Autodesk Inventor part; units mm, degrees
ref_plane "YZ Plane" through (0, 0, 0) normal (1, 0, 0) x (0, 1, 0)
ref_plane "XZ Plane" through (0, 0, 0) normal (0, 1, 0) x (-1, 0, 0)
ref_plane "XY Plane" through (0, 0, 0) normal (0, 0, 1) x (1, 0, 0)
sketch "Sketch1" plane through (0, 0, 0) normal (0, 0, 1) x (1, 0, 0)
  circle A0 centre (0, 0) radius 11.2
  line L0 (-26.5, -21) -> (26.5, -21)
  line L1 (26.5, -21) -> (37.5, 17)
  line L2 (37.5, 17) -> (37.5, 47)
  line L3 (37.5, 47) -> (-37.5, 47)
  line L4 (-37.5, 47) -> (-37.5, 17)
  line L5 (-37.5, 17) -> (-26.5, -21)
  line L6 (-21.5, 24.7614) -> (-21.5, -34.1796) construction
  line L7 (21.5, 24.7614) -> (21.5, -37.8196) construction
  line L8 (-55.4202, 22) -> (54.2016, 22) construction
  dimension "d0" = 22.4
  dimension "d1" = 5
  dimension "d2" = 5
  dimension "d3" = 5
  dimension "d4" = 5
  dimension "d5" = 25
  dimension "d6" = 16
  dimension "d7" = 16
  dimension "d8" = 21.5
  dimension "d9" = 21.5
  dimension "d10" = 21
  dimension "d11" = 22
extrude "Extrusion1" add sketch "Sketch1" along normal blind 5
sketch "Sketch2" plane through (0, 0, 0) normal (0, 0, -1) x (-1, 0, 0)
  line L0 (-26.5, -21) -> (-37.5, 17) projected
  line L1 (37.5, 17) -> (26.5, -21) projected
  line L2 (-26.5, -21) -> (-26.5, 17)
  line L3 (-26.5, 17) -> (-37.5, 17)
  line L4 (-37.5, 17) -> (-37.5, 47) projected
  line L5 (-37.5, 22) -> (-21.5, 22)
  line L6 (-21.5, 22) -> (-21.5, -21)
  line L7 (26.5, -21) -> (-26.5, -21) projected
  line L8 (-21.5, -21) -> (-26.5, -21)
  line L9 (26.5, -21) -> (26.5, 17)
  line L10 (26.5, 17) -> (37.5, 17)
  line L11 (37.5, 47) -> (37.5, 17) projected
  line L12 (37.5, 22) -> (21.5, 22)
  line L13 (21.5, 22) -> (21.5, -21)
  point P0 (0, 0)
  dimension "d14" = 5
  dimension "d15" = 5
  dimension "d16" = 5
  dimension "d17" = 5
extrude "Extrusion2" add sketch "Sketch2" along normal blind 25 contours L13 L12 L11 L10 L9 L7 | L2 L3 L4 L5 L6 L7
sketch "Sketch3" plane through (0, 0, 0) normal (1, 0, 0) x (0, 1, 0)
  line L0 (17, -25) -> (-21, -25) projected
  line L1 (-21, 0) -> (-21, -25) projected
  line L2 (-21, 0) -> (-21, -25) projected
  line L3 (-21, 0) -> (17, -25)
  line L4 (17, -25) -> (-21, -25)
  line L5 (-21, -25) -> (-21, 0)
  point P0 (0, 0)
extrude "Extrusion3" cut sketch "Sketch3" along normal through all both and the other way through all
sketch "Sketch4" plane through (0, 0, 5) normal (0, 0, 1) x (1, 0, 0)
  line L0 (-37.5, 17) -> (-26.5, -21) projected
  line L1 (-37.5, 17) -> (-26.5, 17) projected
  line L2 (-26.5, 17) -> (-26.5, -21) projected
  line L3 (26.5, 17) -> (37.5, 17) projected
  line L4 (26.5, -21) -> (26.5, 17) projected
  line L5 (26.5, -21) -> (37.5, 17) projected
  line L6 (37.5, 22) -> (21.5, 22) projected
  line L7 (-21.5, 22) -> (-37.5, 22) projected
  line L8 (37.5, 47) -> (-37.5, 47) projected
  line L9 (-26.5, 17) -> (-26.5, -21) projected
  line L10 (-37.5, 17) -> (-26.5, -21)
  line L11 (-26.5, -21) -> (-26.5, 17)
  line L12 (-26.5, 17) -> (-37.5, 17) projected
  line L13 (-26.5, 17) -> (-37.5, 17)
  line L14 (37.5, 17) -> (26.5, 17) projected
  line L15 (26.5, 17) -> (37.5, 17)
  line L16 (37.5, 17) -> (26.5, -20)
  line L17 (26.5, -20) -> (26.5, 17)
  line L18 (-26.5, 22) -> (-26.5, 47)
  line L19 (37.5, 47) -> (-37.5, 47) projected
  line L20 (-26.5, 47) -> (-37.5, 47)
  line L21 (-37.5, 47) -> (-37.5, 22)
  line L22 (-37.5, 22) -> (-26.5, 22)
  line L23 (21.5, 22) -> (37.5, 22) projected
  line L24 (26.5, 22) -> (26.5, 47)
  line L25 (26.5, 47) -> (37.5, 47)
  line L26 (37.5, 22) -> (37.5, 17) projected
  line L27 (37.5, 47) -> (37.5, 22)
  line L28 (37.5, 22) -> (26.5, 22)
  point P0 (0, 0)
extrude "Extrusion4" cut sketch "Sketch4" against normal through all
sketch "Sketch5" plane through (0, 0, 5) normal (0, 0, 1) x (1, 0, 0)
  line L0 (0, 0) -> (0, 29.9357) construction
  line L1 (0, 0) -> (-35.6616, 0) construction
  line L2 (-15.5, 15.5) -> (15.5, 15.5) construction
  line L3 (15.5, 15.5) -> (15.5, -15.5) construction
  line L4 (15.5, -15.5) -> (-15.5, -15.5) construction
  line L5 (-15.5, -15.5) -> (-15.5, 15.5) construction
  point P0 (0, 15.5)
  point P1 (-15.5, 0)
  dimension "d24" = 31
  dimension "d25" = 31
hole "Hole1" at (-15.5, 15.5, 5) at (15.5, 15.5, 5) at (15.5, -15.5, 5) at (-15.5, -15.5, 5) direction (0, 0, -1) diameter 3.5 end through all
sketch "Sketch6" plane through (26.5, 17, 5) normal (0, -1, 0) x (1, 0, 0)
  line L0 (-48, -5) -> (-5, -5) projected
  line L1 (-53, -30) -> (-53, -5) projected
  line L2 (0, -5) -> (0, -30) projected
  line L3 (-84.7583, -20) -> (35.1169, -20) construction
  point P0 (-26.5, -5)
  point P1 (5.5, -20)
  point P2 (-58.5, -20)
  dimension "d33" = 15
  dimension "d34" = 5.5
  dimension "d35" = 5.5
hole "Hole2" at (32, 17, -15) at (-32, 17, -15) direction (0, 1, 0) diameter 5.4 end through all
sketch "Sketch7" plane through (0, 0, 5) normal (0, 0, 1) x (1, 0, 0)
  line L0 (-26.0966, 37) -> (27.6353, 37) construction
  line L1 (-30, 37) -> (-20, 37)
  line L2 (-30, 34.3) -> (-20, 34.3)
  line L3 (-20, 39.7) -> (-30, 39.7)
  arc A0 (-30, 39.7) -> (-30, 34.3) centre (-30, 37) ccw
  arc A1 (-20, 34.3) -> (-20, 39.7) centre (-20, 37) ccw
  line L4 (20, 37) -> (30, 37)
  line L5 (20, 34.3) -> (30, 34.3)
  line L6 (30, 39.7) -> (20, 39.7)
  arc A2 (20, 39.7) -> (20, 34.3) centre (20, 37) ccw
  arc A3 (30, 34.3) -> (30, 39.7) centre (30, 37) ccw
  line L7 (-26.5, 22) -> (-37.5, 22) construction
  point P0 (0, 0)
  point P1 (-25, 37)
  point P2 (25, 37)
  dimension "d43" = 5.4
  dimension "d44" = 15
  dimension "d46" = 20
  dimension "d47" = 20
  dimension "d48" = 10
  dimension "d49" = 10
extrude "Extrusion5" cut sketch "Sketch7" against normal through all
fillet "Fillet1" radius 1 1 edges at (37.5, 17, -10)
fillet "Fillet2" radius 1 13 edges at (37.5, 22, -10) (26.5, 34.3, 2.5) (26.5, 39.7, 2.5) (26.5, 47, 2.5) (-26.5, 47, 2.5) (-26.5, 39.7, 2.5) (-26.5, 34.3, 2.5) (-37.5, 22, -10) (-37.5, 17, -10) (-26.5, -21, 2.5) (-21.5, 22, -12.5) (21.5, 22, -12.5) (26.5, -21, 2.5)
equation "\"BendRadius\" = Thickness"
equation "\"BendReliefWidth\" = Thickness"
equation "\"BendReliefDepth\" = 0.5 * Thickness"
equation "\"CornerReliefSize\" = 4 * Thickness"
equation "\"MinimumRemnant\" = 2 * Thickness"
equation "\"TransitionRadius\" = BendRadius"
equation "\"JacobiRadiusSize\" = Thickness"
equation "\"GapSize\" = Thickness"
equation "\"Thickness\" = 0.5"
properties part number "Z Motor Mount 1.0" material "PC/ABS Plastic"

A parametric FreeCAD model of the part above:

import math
import FreeCAD as App
import Part
import Sketcher

V = App.Vector
Q = App.Units.Quantity


def edges_at(feature, points):
    """Names of the edges that pass closest to the given points."""
    edges = feature.Shape.Edges
    near = lambda p: min(range(len(edges)), key=lambda i: edges[i].distToShape(Part.Vertex(*p))[0])
    return sorted({f"Edge{near(p) + 1}" for p in points})

doc = App.newDocument("Part")
body = doc.addObject("PartDesign::Body", "Body")

sketch1 = doc.addObject("Sketcher::SketchObject", "Sketch")
body.addObject(sketch1)
sketch1.AttachmentSupport = (doc.XY_Plane, [""])
sketch1.MapMode = "FlatFace"
sketch1.addGeometry([
    Part.LineSegment(V(-38, 17, 0), V(-26, -21, 0)),
    Part.LineSegment(V(-26, -21, 0), V(26, -21, 0)),
    Part.LineSegment(V(26, -21, 0), V(38, 17, 0)),
    Part.LineSegment(V(38, 17, 0), V(38, 47, 0)),
    Part.LineSegment(V(38, 47, 0), V(-38, 47, 0)),
    Part.LineSegment(V(-38, 47, 0), V(-38, 17, 0)),
    Part.Circle(V(0, 0, 0), V(0, 0, 1), 11),
], False)
sketch1.addConstraint([
    Sketcher.Constraint("Coincident", 0, 2, 1, 1),
    Sketcher.Constraint("Coincident", 1, 2, 2, 1),
    Sketcher.Constraint("Coincident", 2, 2, 3, 1),
    Sketcher.Constraint("Coincident", 3, 2, 4, 1),
    Sketcher.Constraint("Coincident", 4, 2, 5, 1),
    Sketcher.Constraint("Coincident", 5, 2, 0, 1),
    Sketcher.Constraint("Horizontal", 1),
    Sketcher.Constraint("Vertical", 3),
    Sketcher.Constraint("Horizontal", 4),
    Sketcher.Constraint("Vertical", 5),
    Sketcher.Constraint("Coincident", 6, 3, -1, 1),
    Sketcher.Constraint("Symmetric", 2, 2, 5, 2, -2),
    Sketcher.Constraint("Equal", 0, 2),
    Sketcher.Constraint("Diameter", 6, Q("22.4 mm")),
    Sketcher.Constraint("DistanceY", 0, 2, -1, 1, Q("21 mm")),
    Sketcher.Constraint("DistanceX", 1, 1, 1, 2, Q("53 mm")),
    Sketcher.Constraint("DistanceX", 4, 2, 4, 1, Q("75 mm")),
    Sketcher.Constraint("DistanceY", 3, 1, 3, 2, Q("30 mm")),
    Sketcher.Constraint("DistanceY", -1, 1, 2, 2, Q("17 mm")),
])
pad1 = doc.addObject("PartDesign::Pad", "Pad")
body.addObject(pad1)
pad1.Profile = sketch1
pad1.Length = 5

sketch2 = doc.addObject("Sketcher::SketchObject", "Sketch001")
body.addObject(sketch2)
sketch2.AttachmentSupport = (doc.XY_Plane, [""])
sketch2.MapMode = "FlatFace"
sketch2.addGeometry([
    Part.LineSegment(V(-22, 22, 0), V(-22, -21, 0)),
    Part.LineSegment(V(-22, -21, 0), V(-26, -21, 0)),
    Part.LineSegment(V(-26, -21, 0), V(-26, 17, 0)),
    Part.LineSegment(V(-26, 17, 0), V(-38, 17, 0)),
    Part.LineSegment(V(-38, 17, 0), V(-38, 22, 0)),
    Part.LineSegment(V(-38, 22, 0), V(-22, 22, 0)),
    Part.LineSegment(V(26, 17, 0), V(26, -21, 0)),
    Part.LineSegment(V(26, -21, 0), V(22, -21, 0)),
    Part.LineSegment(V(22, -21, 0), V(22, 22, 0)),
    Part.LineSegment(V(22, 22, 0), V(38, 22, 0)),
    Part.LineSegment(V(38, 22, 0), V(38, 17, 0)),
    Part.LineSegment(V(38, 17, 0), V(26, 17, 0)),
], False)
sketch2.addConstraint([
    Sketcher.Constraint("Coincident", 0, 2, 1, 1),
    Sketcher.Constraint("Coincident", 1, 2, 2, 1),
    Sketcher.Constraint("Coincident", 2, 2, 3, 1),
    Sketcher.Constraint("Coincident", 3, 2, 4, 1),
    Sketcher.Constraint("Coincident", 4, 2, 5, 1),
    Sketcher.Constraint("Coincident", 5, 2, 0, 1),
    Sketcher.Constraint("Coincident", 6, 2, 7, 1),
    Sketcher.Constraint("Coincident", 7, 2, 8, 1),
    Sketcher.Constraint("Coincident", 8, 2, 9, 1),
    Sketcher.Constraint("Coincident", 9, 2, 10, 1),
    Sketcher.Constraint("Coincident", 10, 2, 11, 1),
    Sketcher.Constraint("Coincident", 11, 2, 6, 1),
    Sketcher.Constraint("Vertical", 0),
    Sketcher.Constraint("Horizontal", 1),
    Sketcher.Constraint("Vertical", 2),
    Sketcher.Constraint("Horizontal", 3),
    Sketcher.Constraint("Vertical", 4),
    Sketcher.Constraint("Horizontal", 5),
    Sketcher.Constraint("Vertical", 6),
    Sketcher.Constraint("Horizontal", 7),
    Sketcher.Constraint("Vertical", 8),
    Sketcher.Constraint("Horizontal", 9),
    Sketcher.Constraint("Vertical", 10),
    Sketcher.Constraint("Horizontal", 11),
    Sketcher.Constraint("Symmetric", 1, 2, 6, 2, -2),
    Sketcher.Constraint("Symmetric", 5, 2, 8, 2, -2),
    Sketcher.Constraint("Symmetric", 3, 2, 10, 2, -2),
    Sketcher.Constraint("Equal", 7, 4),
    Sketcher.Constraint("DistanceX", 1, 2, 1, 1, Q("5 mm")),
    Sketcher.Constraint("DistanceX", 3, 2, 3, 1, Q("11 mm")),
    Sketcher.Constraint("DistanceY", 0, 2, 0, 1, Q("43 mm")),
    Sketcher.Constraint("DistanceY", 0, 2, -1, 1, Q("21 mm")),
    Sketcher.Constraint("DistanceX", 0, 2, 6, 2, Q("48 mm")),
])
pad2 = doc.addObject("PartDesign::Pad", "Pad001")
body.addObject(pad2)
pad2.Profile = sketch2
pad2.Length = 25
pad2.Reversed = True

sketch3 = doc.addObject("Sketcher::SketchObject", "Sketch002")
body.addObject(sketch3)
sketch3.AttachmentSupport = (doc.YZ_Plane, [""])
sketch3.MapMode = "FlatFace"
sketch3.addGeometry([
    Part.LineSegment(V(-21, -25, 0), V(17, -25, 0)),
    Part.LineSegment(V(17, -25, 0), V(-21, 0, 0)),
    Part.LineSegment(V(-21, 0, 0), V(-21, -25, 0)),
], False)
sketch3.addConstraint([
    Sketcher.Constraint("Coincident", 0, 2, 1, 1),
    Sketcher.Constraint("Coincident", 1, 2, 2, 1),
    Sketcher.Constraint("Coincident", 2, 2, 0, 1),
    Sketcher.Constraint("Horizontal", 0),
    Sketcher.Constraint("Vertical", 2),
    Sketcher.Constraint("PointOnObject", 1, 2, -1),
    Sketcher.Constraint("DistanceX", 0, 1, 0, 2, Q("38 mm")),
    Sketcher.Constraint("DistanceY", 2, 2, 2, 1, Q("25 mm")),
    Sketcher.Constraint("DistanceX", -1, 1, 0, 2, Q("17 mm")),
])
pocket1 = doc.addObject("PartDesign::Pocket", "Pocket")
body.addObject(pocket1)
pocket1.Profile = sketch3
pocket1.Type = "ThroughAll"
pocket1.Midplane = True

sketch4 = doc.addObject("Sketcher::SketchObject", "Sketch003")
body.addObject(sketch4)
sketch4.AttachmentSupport = (doc.XY_Plane, [""])
sketch4.MapMode = "FlatFace"
sketch4.AttachmentOffset = App.Placement(V(0, 0, 5), App.Rotation())
sketch4.addGeometry([
    Part.LineSegment(V(-26, 17, 0), V(-38, 17, 0)),
    Part.LineSegment(V(-38, 17, 0), V(-26, -21, 0)),
    Part.LineSegment(V(-26, -21, 0), V(-26, 17, 0)),
    Part.LineSegment(V(-26, 22, 0), V(-26, 47, 0)),
    Part.LineSegment(V(-26, 47, 0), V(-38, 47, 0)),
    Part.LineSegment(V(-38, 47, 0), V(-38, 22, 0)),
    Part.LineSegment(V(-38, 22, 0), V(-26, 22, 0)),
    Part.LineSegment(V(26, 22, 0), V(38, 22, 0)),
    Part.LineSegment(V(38, 22, 0), V(38, 47, 0)),
    Part.LineSegment(V(38, 47, 0), V(26, 47, 0)),
    Part.LineSegment(V(26, 47, 0), V(26, 22, 0)),
    Part.LineSegment(V(38, 17, 0), V(26, 17, 0)),
    Part.LineSegment(V(26, 17, 0), V(26, -21, 0)),
    Part.LineSegment(V(26, -21, 0), V(38, 17, 0)),
], False)
sketch4.addConstraint([
    Sketcher.Constraint("Coincident", 0, 2, 1, 1),
    Sketcher.Constraint("Coincident", 1, 2, 2, 1),
    Sketcher.Constraint("Coincident", 2, 2, 0, 1),
    Sketcher.Constraint("Coincident", 3, 2, 4, 1),
    Sketcher.Constraint("Coincident", 4, 2, 5, 1),
    Sketcher.Constraint("Coincident", 5, 2, 6, 1),
    Sketcher.Constraint("Coincident", 6, 2, 3, 1),
    Sketcher.Constraint("Coincident", 7, 2, 8, 1),
    Sketcher.Constraint("Coincident", 8, 2, 9, 1),
    Sketcher.Constraint("Coincident", 9, 2, 10, 1),
    Sketcher.Constraint("Coincident", 10, 2, 7, 1),
    Sketcher.Constraint("Coincident", 11, 2, 12, 1),
    Sketcher.Constraint("Coincident", 12, 2, 13, 1),
    Sketcher.Constraint("Coincident", 13, 2, 11, 1),
    Sketcher.Constraint("Horizontal", 0),
    Sketcher.Constraint("Vertical", 2),
    Sketcher.Constraint("Vertical", 3),
    Sketcher.Constraint("Horizontal", 4),
    Sketcher.Constraint("Vertical", 5),
    Sketcher.Constraint("Horizontal", 6),
    Sketcher.Constraint("Horizontal", 7),
    Sketcher.Constraint("Vertical", 8),
    Sketcher.Constraint("Horizontal", 9),
    Sketcher.Constraint("Vertical", 10),
    Sketcher.Constraint("Horizontal", 11),
    Sketcher.Constraint("Vertical", 12),
    Sketcher.Constraint("Symmetric", 5, 2, 7, 2, -2),
    Sketcher.Constraint("Symmetric", 3, 2, 9, 2, -2),
    Sketcher.Constraint("Symmetric", 2, 2, 11, 2, -2),
    Sketcher.Constraint("Horizontal", 1, 2, 12, 2),
    Sketcher.Constraint("Vertical", 2, 2, 3, 2),
    Sketcher.Constraint("Vertical", 0, 2, 4, 2),
    Sketcher.Constraint("Vertical", 8, 2, 13, 2),
    Sketcher.Constraint("DistanceX", 0, 2, 0, 1, Q("11 mm")),
    Sketcher.Constraint("DistanceY", 2, 1, 2, 2, Q("38 mm")),
    Sketcher.Constraint("DistanceY", 3, 1, 3, 2, Q("25 mm")),
    Sketcher.Constraint("DistanceY", -1, 1, 0, 2, Q("17 mm")),
    Sketcher.Constraint("DistanceY", -1, 1, 3, 2, Q("47 mm")),
    Sketcher.Constraint("DistanceX", 6, 2, 7, 2, Q("64 mm")),
])
pocket2 = doc.addObject("PartDesign::Pocket", "Pocket001")
body.addObject(pocket2)
pocket2.Profile = sketch4
pocket2.Type = "ThroughAll"

sketch5 = doc.addObject("Sketcher::SketchObject", "Sketch004")
body.addObject(sketch5)
sketch5.AttachmentSupport = (doc.XY_Plane, [""])
sketch5.MapMode = "FlatFace"
sketch5.AttachmentOffset = App.Placement(V(0, 0, 5), App.Rotation())
sketch5.addGeometry([
    Part.Circle(V(-15.5, 15.5, 0), V(0, 0, 1), 1.8),
    Part.Circle(V(15.5, 15.5, 0), V(0, 0, 1), 1.8),
    Part.Circle(V(15.5, -15.5, 0), V(0, 0, 1), 1.8),
    Part.Circle(V(-15.5, -15.5, 0), V(0, 0, 1), 1.8),
], False)
sketch5.addConstraint([
    Sketcher.Constraint("Equal", 0, 1),
    Sketcher.Constraint("Equal", 1, 2),
    Sketcher.Constraint("Equal", 2, 3),
    Sketcher.Constraint("Symmetric", 0, 3, 2, 3, -1, 1),
    Sketcher.Constraint("Symmetric", 1, 3, 3, 3, -1, 1),
    Sketcher.Constraint("Symmetric", 0, 3, 1, 3, -2),
    Sketcher.Constraint("Diameter", 0, Q("3.5 mm")),
    Sketcher.Constraint("DistanceX", 0, 3, 1, 3, Q("31 mm")),
    Sketcher.Constraint("DistanceY", 2, 3, 1, 3, Q("31 mm")),
])
doc.recompute()
hole = doc.addObject("PartDesign::Hole", "Hole")
body.addObject(hole)
hole.Profile = sketch5
hole.ThreadType = "None"
hole.Diameter = 3.5
hole.DepthType = "ThroughAll"

sketch6 = doc.addObject("Sketcher::SketchObject", "Sketch005")
body.addObject(sketch6)
sketch6.AttachmentSupport = (doc.XZ_Plane, [""])
sketch6.MapMode = "FlatFace"
sketch6.AttachmentOffset = App.Placement(V(0, 0, -17), App.Rotation())
sketch6.addGeometry([
    Part.Circle(V(32, -15, 0), V(0, 0, 1), 2.7),
    Part.Circle(V(-32, -15, 0), V(0, 0, 1), 2.7),
], False)
sketch6.addConstraint([
    Sketcher.Constraint("Equal", 0, 1),
    Sketcher.Constraint("Symmetric", 0, 3, 1, 3, -2),
    Sketcher.Constraint("Diameter", 0, Q("5.4 mm")),
    Sketcher.Constraint("DistanceX", -1, 1, 0, 3, Q("32 mm")),
    Sketcher.Constraint("DistanceY", 0, 3, -1, 1, Q("15 mm")),
])
doc.recompute()
hole2 = doc.addObject("PartDesign::Hole", "Hole001")
body.addObject(hole2)
hole2.Profile = sketch6
hole2.ThreadType = "None"
hole2.Diameter = 5.4
hole2.DepthType = "ThroughAll"

sketch7 = doc.addObject("Sketcher::SketchObject", "Sketch006")
body.addObject(sketch7)
sketch7.AttachmentSupport = (doc.XY_Plane, [""])
sketch7.MapMode = "FlatFace"
sketch7.AttachmentOffset = App.Placement(V(0, 0, 5), App.Rotation())
sketch7.addGeometry([
    Part.ArcOfCircle(Part.Circle(V(-30, 37, 0), V(0, 0, 1), 2.7), math.radians(90), math.radians(270)),
    Part.LineSegment(V(-30, 34.3, 0), V(-20, 34.3, 0)),
    Part.ArcOfCircle(Part.Circle(V(-20, 37, 0), V(0, 0, 1), 2.7), math.radians(-90), math.radians(90)),
    Part.LineSegment(V(-20, 39.7, 0), V(-30, 39.7, 0)),
    Part.ArcOfCircle(Part.Circle(V(20, 37, 0), V(0, 0, 1), 2.7), math.radians(90), math.radians(270)),
    Part.LineSegment(V(20, 34.3, 0), V(30, 34.3, 0)),
    Part.ArcOfCircle(Part.Circle(V(30, 37, 0), V(0, 0, 1), 2.7), math.radians(-90), math.radians(90)),
    Part.LineSegment(V(30, 39.7, 0), V(20, 39.7, 0)),
], False)
sketch7.addConstraint([
    Sketcher.Constraint("Tangent", 0, 2, 1, 1),
    Sketcher.Constraint("Tangent", 1, 2, 2, 1),
    Sketcher.Constraint("Tangent", 2, 2, 3, 1),
    Sketcher.Constraint("Tangent", 3, 2, 0, 1),
    Sketcher.Constraint("Tangent", 4, 2, 5, 1),
    Sketcher.Constraint("Tangent", 5, 2, 6, 1),
    Sketcher.Constraint("Tangent", 6, 2, 7, 1),
    Sketcher.Constraint("Tangent", 7, 2, 4, 1),
    Sketcher.Constraint("Horizontal", 1),
    Sketcher.Constraint("Horizontal", 3),
    Sketcher.Constraint("Horizontal", 5),
    Sketcher.Constraint("Horizontal", 7),
    Sketcher.Constraint("Equal", 2, 4),
    Sketcher.Constraint("Symmetric", 2, 3, 4, 3, -2),
    Sketcher.Constraint("Equal", 3, 5),
    Sketcher.Constraint("Radius", 0, Q("2.7 mm")),
    Sketcher.Constraint("DistanceX", 1, 1, 1, 2, Q("10 mm")),
    Sketcher.Constraint("DistanceX", 2, 3, -1, 1, Q("20 mm")),
    Sketcher.Constraint("DistanceY", -1, 1, 0, 3, Q("37 mm")),
])
pocket3 = doc.addObject("PartDesign::Pocket", "Pocket002")
body.addObject(pocket3)
pocket3.Profile = sketch7
pocket3.Type = "ThroughAll"
doc.recompute()

fillet = doc.addObject("PartDesign::Fillet", "Fillet")
body.addObject(fillet)
fillet.Base = (pocket3, edges_at(pocket3, [(37.5, 17, -10)]))
fillet.Radius = 1
doc.recompute()

fillet2 = doc.addObject("PartDesign::Fillet", "Fillet001")
body.addObject(fillet2)
fillet2.Base = (fillet, edges_at(fillet, [
    (37.5, 22, -10),
    (26.5, 34.3, 2.5),
    (26.5, 39.7, 2.5),
    (26.5, 47, 2.5),
    (-26.5, 47, 2.5),
    (-26.5, 39.7, 2.5),
    (-26.5, 34.3, 2.5),
    (-37.5, 22, -10),
    (-37.5, 17, -10),
    (-26.5, -21, 2.5),
    (-21.5, 22, -12.5),
    (21.5, 22, -12.5),
    (26.5, -21, 2.5),
]))
fillet2.Radius = 1

doc.recompute()
